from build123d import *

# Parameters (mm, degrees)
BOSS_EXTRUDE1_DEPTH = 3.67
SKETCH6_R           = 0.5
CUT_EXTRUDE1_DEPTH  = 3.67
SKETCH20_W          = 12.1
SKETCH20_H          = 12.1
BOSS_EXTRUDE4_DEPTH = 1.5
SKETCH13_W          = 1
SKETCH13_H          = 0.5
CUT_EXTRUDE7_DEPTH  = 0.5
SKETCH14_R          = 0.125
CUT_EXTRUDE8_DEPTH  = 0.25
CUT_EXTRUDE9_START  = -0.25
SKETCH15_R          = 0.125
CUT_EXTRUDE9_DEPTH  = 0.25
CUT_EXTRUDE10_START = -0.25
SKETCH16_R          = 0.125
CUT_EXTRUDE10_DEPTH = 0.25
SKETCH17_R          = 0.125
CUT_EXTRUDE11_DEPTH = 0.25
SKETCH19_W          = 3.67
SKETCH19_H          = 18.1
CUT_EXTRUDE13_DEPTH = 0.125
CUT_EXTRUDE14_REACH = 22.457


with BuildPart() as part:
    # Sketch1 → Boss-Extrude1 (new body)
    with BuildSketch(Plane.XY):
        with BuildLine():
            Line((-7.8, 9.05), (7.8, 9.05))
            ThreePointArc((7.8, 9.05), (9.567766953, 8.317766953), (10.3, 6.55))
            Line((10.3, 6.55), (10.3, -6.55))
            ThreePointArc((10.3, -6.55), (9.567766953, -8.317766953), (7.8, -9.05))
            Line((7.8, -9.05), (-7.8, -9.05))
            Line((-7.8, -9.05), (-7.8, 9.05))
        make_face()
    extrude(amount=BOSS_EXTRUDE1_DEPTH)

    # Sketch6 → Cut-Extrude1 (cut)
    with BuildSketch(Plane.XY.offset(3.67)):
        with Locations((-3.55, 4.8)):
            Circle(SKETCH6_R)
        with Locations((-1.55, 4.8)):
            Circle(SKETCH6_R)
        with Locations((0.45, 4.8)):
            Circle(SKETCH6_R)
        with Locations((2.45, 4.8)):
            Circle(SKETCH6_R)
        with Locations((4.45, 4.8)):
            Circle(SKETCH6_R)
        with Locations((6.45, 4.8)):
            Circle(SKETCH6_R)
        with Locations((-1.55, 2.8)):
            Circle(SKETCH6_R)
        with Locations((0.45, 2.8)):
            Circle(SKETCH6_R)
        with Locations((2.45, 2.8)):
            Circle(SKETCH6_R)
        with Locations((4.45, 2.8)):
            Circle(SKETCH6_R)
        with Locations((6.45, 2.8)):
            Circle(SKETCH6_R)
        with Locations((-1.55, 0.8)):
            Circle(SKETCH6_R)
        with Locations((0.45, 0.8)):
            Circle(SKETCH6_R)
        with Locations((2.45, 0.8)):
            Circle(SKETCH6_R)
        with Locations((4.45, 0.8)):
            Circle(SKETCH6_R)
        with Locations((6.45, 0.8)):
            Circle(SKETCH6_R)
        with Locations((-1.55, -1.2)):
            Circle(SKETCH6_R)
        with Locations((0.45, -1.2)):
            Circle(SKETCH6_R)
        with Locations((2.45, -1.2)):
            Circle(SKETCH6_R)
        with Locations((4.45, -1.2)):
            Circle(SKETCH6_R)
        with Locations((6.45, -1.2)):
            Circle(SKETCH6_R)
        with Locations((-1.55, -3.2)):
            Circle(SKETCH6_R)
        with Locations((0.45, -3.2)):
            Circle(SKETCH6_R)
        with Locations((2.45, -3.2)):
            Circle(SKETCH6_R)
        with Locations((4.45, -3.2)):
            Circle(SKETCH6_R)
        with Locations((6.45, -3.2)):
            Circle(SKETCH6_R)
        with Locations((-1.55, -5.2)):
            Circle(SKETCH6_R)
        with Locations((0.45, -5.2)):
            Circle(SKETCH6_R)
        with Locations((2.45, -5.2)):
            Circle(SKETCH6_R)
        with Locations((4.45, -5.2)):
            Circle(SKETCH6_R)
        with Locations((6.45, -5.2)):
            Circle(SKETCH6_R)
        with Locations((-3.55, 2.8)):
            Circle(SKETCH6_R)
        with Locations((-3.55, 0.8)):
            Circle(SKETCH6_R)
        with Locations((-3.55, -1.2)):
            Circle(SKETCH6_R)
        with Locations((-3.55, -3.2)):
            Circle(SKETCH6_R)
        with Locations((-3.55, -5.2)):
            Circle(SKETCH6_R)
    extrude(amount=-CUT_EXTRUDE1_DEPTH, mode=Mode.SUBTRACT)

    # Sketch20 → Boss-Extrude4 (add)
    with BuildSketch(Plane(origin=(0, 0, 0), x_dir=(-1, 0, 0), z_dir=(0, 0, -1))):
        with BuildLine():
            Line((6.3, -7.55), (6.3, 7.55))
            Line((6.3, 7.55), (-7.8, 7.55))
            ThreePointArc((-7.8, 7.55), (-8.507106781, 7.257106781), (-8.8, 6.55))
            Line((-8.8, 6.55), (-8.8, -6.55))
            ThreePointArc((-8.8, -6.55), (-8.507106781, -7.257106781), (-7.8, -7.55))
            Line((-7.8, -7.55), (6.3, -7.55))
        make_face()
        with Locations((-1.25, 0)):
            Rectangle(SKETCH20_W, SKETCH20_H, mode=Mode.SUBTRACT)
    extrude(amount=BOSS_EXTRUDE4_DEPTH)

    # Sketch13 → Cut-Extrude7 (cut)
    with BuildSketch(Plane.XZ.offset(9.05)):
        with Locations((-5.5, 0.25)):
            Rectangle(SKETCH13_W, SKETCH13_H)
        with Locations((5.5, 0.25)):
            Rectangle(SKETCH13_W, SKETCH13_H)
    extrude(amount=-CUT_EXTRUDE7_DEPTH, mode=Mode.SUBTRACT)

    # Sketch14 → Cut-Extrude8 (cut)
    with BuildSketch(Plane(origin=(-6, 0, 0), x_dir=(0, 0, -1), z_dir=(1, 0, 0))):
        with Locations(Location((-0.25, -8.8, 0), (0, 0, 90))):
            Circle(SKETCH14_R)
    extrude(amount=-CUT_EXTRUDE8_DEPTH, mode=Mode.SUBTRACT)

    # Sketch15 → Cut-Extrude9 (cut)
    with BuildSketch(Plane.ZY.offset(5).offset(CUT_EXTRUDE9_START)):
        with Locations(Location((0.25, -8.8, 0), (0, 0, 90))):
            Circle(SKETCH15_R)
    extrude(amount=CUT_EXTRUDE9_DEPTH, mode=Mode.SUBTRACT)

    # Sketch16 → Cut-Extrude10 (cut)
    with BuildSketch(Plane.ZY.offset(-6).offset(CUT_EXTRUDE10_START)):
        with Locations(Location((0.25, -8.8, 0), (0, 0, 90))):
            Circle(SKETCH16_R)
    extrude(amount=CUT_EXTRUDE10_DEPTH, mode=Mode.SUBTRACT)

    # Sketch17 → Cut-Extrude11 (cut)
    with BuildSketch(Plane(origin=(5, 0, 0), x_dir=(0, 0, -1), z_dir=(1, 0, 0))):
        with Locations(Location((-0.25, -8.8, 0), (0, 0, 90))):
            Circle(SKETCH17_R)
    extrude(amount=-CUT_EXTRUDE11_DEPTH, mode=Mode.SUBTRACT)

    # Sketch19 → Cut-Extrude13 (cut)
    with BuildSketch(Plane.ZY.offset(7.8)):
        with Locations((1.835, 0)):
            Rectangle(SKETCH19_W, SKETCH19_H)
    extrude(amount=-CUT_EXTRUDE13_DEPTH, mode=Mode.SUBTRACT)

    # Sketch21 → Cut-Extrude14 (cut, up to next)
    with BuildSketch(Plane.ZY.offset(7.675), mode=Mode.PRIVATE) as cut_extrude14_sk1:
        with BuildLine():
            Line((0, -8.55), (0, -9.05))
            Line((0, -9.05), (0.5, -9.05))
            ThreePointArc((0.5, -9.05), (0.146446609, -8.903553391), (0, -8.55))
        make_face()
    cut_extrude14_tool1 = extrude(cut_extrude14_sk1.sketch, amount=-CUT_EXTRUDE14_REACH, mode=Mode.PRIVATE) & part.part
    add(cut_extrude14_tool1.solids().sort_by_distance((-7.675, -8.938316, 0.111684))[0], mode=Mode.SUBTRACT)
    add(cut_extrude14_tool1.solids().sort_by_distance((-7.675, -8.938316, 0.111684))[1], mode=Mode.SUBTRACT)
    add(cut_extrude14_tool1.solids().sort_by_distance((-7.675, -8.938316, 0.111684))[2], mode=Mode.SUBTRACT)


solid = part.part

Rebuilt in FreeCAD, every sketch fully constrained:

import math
import FreeCAD as App
import Part
import Sketcher

doc = App.newDocument("Part")
body = doc.addObject("PartDesign::Body", "Body")

sketch1 = body.newObject("Sketcher::SketchObject", "Sketch")
sketch1.AttachmentSupport = (doc.getObject("XY_Plane"), [""])
sketch1.MapMode = "FlatFace"
sketch1.addGeometry([
    Part.LineSegment(App.Vector(7.8, 9.1, 0), App.Vector(-7.8, 9.1, 0)),
    Part.LineSegment(App.Vector(-7.8, 9.1, 0), App.Vector(-7.8, -9.1, 0)),
    Part.LineSegment(App.Vector(-7.8, -9.1, 0), App.Vector(7.8, -9.1, 0)),
    Part.ArcOfCircle(Part.Circle(App.Vector(7.8, -6.5, 0), App.Vector(0, 0, 1), 2.5), math.radians(-90), math.radians(0)),
    Part.LineSegment(App.Vector(10.3, -6.5, 0), App.Vector(10.3, 6.5, 0)),
    Part.ArcOfCircle(Part.Circle(App.Vector(7.8, 6.5, 0), App.Vector(0, 0, 1), 2.5), math.radians(0), math.radians(90)),
], False)
sketch1.addConstraint([
    Sketcher.Constraint("Coincident", 0, 2, 1, 1),
    Sketcher.Constraint("Coincident", 1, 2, 2, 1),
    Sketcher.Constraint("Tangent", 2, 2, 3, 1),
    Sketcher.Constraint("Tangent", 3, 2, 4, 1),
    Sketcher.Constraint("Tangent", 4, 2, 5, 1),
    Sketcher.Constraint("Tangent", 5, 2, 0, 1),
    Sketcher.Constraint("Horizontal", 0),
    Sketcher.Constraint("Vertical", 1),
    Sketcher.Constraint("Horizontal", 2),
    Sketcher.Constraint("Vertical", 4),
    Sketcher.Constraint("Equal", 3, 5),
    Sketcher.Constraint("Symmetric", 0, 2, 2, 2, -1, 1),
    Sketcher.Constraint("Radius", 3, 2.5),
    Sketcher.Constraint("DistanceX", 0, 2, 0, 1, 15.6),
    Sketcher.Constraint("DistanceY", 1, 2, 1, 1, 18.1),
])
pad1 = body.newObject("PartDesign::Pad", "Pad")
pad1.Profile = sketch1
pad1.Length = 3.67

sketch2 = body.newObject("Sketcher::SketchObject", "Sketch001")
sketch2.AttachmentSupport = (doc.getObject("XY_Plane"), [""])
sketch2.MapMode = "FlatFace"
sketch2.AttachmentOffset = App.Placement(App.Vector(0, 0, 3.67), App.Rotation())
sketch2.addGeometry([
    Part.Circle(App.Vector(-3.5, 4.8, 0), App.Vector(0, 0, 1), 0.5),
    Part.Circle(App.Vector(-1.6, 4.8, 0), App.Vector(0, 0, 1), 0.5),
    Part.Circle(App.Vector(0.5, 4.8, 0), App.Vector(0, 0, 1), 0.5),
    Part.Circle(App.Vector(2.5, 4.8, 0), App.Vector(0, 0, 1), 0.5),
    Part.Circle(App.Vector(4.5, 4.8, 0), App.Vector(0, 0, 1), 0.5),
    Part.Circle(App.Vector(6.5, 4.8, 0), App.Vector(0, 0, 1), 0.5),
    Part.Circle(App.Vector(-1.6, 2.8, 0), App.Vector(0, 0, 1), 0.5),
    Part.Circle(App.Vector(0.5, 2.8, 0), App.Vector(0, 0, 1), 0.5),
    Part.Circle(App.Vector(2.5, 2.8, 0), App.Vector(0, 0, 1), 0.5),
    Part.Circle(App.Vector(4.5, 2.8, 0), App.Vector(0, 0, 1), 0.5),
    Part.Circle(App.Vector(6.5, 2.8, 0), App.Vector(0, 0, 1), 0.5),
    Part.Circle(App.Vector(-1.6, 0.8, 0), App.Vector(0, 0, 1), 0.5),
    Part.Circle(App.Vector(0.5, 0.8, 0), App.Vector(0, 0, 1), 0.5),
    Part.Circle(App.Vector(2.5, 0.8, 0), App.Vector(0, 0, 1), 0.5),
    Part.Circle(App.Vector(4.5, 0.8, 0), App.Vector(0, 0, 1), 0.5),
    Part.Circle(App.Vector(6.5, 0.8, 0), App.Vector(0, 0, 1), 0.5),
    Part.Circle(App.Vector(-1.6, -1.2, 0), App.Vector(0, 0, 1), 0.5),
    Part.Circle(App.Vector(0.5, -1.2, 0), App.Vector(0, 0, 1), 0.5),
    Part.Circle(App.Vector(2.5, -1.2, 0), App.Vector(0, 0, 1), 0.5),
    Part.Circle(App.Vector(4.5, -1.2, 0), App.Vector(0, 0, 1), 0.5),
    Part.Circle(App.Vector(6.5, -1.2, 0), App.Vector(0, 0, 1), 0.5),
    Part.Circle(App.Vector(-1.6, -3.2, 0), App.Vector(0, 0, 1), 0.5),
    Part.Circle(App.Vector(0.5, -3.2, 0), App.Vector(0, 0, 1), 0.5),
    Part.Circle(App.Vector(2.5, -3.2, 0), App.Vector(0, 0, 1), 0.5),
    Part.Circle(App.Vector(4.5, -3.2, 0), App.Vector(0, 0, 1), 0.5),
    Part.Circle(App.Vector(6.5, -3.2, 0), App.Vector(0, 0, 1), 0.5),
    Part.Circle(App.Vector(-1.6, -5.2, 0), App.Vector(0, 0, 1), 0.5),
    Part.Circle(App.Vector(0.5, -5.2, 0), App.Vector(0, 0, 1), 0.5),
    Part.Circle(App.Vector(2.5, -5.2, 0), App.Vector(0, 0, 1), 0.5),
    Part.Circle(App.Vector(4.5, -5.2, 0), App.Vector(0, 0, 1), 0.5),
    Part.Circle(App.Vector(6.5, -5.2, 0), App.Vector(0, 0, 1), 0.5),
    Part.Circle(App.Vector(-3.5, 2.8, 0), App.Vector(0, 0, 1), 0.5),
    Part.Circle(App.Vector(-3.5, 0.8, 0), App.Vector(0, 0, 1), 0.5),
    Part.Circle(App.Vector(-3.5, -1.2, 0), App.Vector(0, 0, 1), 0.5),
    Part.Circle(App.Vector(-3.5, -3.2, 0), App.Vector(0, 0, 1), 0.5),
    Part.Circle(App.Vector(-3.5, -5.2, 0), App.Vector(0, 0, 1), 0.5),
], False)
sketch2.addConstraint([
    Sketcher.Constraint("Equal", 0, 1),
    Sketcher.Constraint("Equal", 1, 2),
    Sketcher.Constraint("Equal", 2, 3),
    Sketcher.Constraint("Equal", 3, 4),
    Sketcher.Constraint("Equal", 4, 5),
    Sketcher.Constraint("Equal", 5, 6),
    Sketcher.Constraint("Equal", 6, 7),
    Sketcher.Constraint("Equal", 7, 8),
    Sketcher.Constraint("Equal", 8, 9),
    Sketcher.Constraint("Equal", 9, 10),
    Sketcher.Constraint("Equal", 10, 11),
    Sketcher.Constraint("Equal", 11, 12),
    Sketcher.Constraint("Equal", 12, 13),
    Sketcher.Constraint("Equal", 13, 14),
    Sketcher.Constraint("Equal", 14, 15),
    Sketcher.Constraint("Equal", 15, 16),
    Sketcher.Constraint("Equal", 16, 17),
    Sketcher.Constraint("Equal", 17, 18),
    Sketcher.Constraint("Equal", 18, 19),
    Sketcher.Constraint("Equal", 19, 20),
    Sketcher.Constraint("Equal", 20, 21),
    Sketcher.Constraint("Equal", 21, 22),
    Sketcher.Constraint("Equal", 22, 23),
    Sketcher.Constraint("Equal", 23, 24),
    Sketcher.Constraint("Equal", 24, 25),
    Sketcher.Constraint("Equal", 25, 26),
    Sketcher.Constraint("Equal", 26, 27),
    Sketcher.Constraint("Equal", 27, 28),
    Sketcher.Constraint("Equal", 28, 29),
    Sketcher.Constraint("Equal", 29, 30),
    Sketcher.Constraint("Equal", 30, 31),
    Sketcher.Constraint("Equal", 31, 32),
    Sketcher.Constraint("Equal", 32, 33),
    Sketcher.Constraint("Equal", 33, 34),
    Sketcher.Constraint("Equal", 34, 35),
    Sketcher.Constraint("Horizontal", 0, 3, 1, 3),
    Sketcher.Constraint("Horizontal", 1, 3, 2, 3),
    Sketcher.Constraint("Horizontal", 2, 3, 3, 3),
    Sketcher.Constraint("Horizontal", 3, 3, 4, 3),
    Sketcher.Constraint("Horizontal", 4, 3, 5, 3),
    Sketcher.Constraint("Horizontal", 6, 3, 7, 3),
    Sketcher.Constraint("Horizontal", 7, 3, 8, 3),
    Sketcher.Constraint("Horizontal", 8, 3, 9, 3),
    Sketcher.Constraint("Horizontal", 9, 3, 10, 3),
    Sketcher.Constraint("Horizontal", 11, 3, 12, 3),
    Sketcher.Constraint("Horizontal", 12, 3, 13, 3),
    Sketcher.Constraint("Horizontal", 13, 3, 14, 3),
    Sketcher.Constraint("Horizontal", 14, 3, 15, 3),
    Sketcher.Constraint("Horizontal", 16, 3, 17, 3),
    Sketcher.Constraint("Horizontal", 17, 3, 18, 3),
    Sketcher.Constraint("Horizontal", 18, 3, 19, 3),
    Sketcher.Constraint("Horizontal", 19, 3, 20, 3),
    Sketcher.Constraint("Horizontal", 21, 3, 22, 3),
    Sketcher.Constraint("Horizontal", 22, 3, 23, 3),
    Sketcher.Constraint("Horizontal", 23, 3, 24, 3),
    Sketcher.Constraint("Horizontal", 24, 3, 25, 3),
    Sketcher.Constraint("Horizontal", 26, 3, 27, 3),
    Sketcher.Constraint("Horizontal", 27, 3, 28, 3),
    Sketcher.Constraint("Horizontal", 28, 3, 29, 3),
    Sketcher.Constraint("Horizontal", 29, 3, 30, 3),
    Sketcher.Constraint("Horizontal", 10, 3, 31, 3),
    Sketcher.Constraint("Horizontal", 15, 3, 32, 3),
    Sketcher.Constraint("Horizontal", 20, 3, 33, 3),
    Sketcher.Constraint("Horizontal", 25, 3, 34, 3),
    Sketcher.Constraint("Horizontal", 30, 3, 35, 3),
    Sketcher.Constraint("Vertical", 1, 3, 6, 3),
    Sketcher.Constraint("Vertical", 2, 3, 7, 3),
    Sketcher.Constraint("Vertical", 3, 3, 8, 3),
    Sketcher.Constraint("Vertical", 4, 3, 9, 3),
    Sketcher.Constraint("Vertical", 5, 3, 10, 3),
    Sketcher.Constraint("Vertical", 6, 3, 11, 3),
    Sketcher.Constraint("Vertical", 7, 3, 12, 3),
    Sketcher.Constraint("Vertical", 8, 3, 13, 3),
    Sketcher.Constraint("Vertical", 9, 3, 14, 3),
    Sketcher.Constraint("Vertical", 10, 3, 15, 3),
    Sketcher.Constraint("Vertical", 11, 3, 16, 3),
    Sketcher.Constraint("Vertical", 12, 3, 17, 3),
    Sketcher.Constraint("Vertical", 13, 3, 18, 3),
    Sketcher.Constraint("Vertical", 14, 3, 19, 3),
    Sketcher.Constraint("Vertical", 15, 3, 20, 3),
    Sketcher.Constraint("Vertical", 16, 3, 21, 3),
    Sketcher.Constraint("Vertical", 17, 3, 22, 3),
    Sketcher.Constraint("Vertical", 18, 3, 23, 3),
    Sketcher.Constraint("Vertical", 19, 3, 24, 3),
    Sketcher.Constraint("Vertical", 20, 3, 25, 3),
    Sketcher.Constraint("Vertical", 21, 3, 26, 3),
    Sketcher.Constraint("Vertical", 22, 3, 27, 3),
    Sketcher.Constraint("Vertical", 23, 3, 28, 3),
    Sketcher.Constraint("Vertical", 24, 3, 29, 3),
    Sketcher.Constraint("Vertical", 25, 3, 30, 3),
    Sketcher.Constraint("Vertical", 0, 3, 31, 3),
    Sketcher.Constraint("Vertical", 31, 3, 32, 3),
    Sketcher.Constraint("Vertical", 32, 3, 33, 3),
    Sketcher.Constraint("Vertical", 33, 3, 34, 3),
    Sketcher.Constraint("Vertical", 34, 3, 35, 3),
    Sketcher.Constraint("Diameter", 0, 1.0),
    Sketcher.Constraint("DistanceX", 0, 3, 1, 3, 2.0),
    Sketcher.Constraint("DistanceX", 1, 3, 2, 3, 2.0),
    Sketcher.Constraint("DistanceX", 2, 3, 3, 3, 2.0),
    Sketcher.Constraint("DistanceX", 3, 3, 4, 3, 2.0),
    Sketcher.Constraint("DistanceX", 4, 3, 5, 3, 2.0),
    Sketcher.Constraint("DistanceY", 6, 3, 1, 3, 2.0),
    Sketcher.Constraint("DistanceY", 11, 3, 6, 3, 2.0),
    Sketcher.Constraint("DistanceY", 16, 3, 11, 3, 2.0),
    Sketcher.Constraint("DistanceY", 21, 3, 16, 3, 2.0),
    Sketcher.Constraint("DistanceY", 26, 3, 21, 3, 2.0),
    Sketcher.Constraint("DistanceY", -1, 1, 0, 3, 4.8),
    Sketcher.Constraint("DistanceX", 0, 3, -1, 1, 3.55),
])
pocket1 = body.newObject("PartDesign::Pocket", "Pocket")
pocket1.Profile = sketch2
pocket1.Length = 3.67

sketch3 = body.newObject("Sketcher::SketchObject", "Sketch002")
sketch3.AttachmentSupport = (doc.getObject("XY_Plane"), [""])
sketch3.MapMode = "FlatFace"
sketch3.addGeometry([
    Part.LineSegment(App.Vector(-6.3, -7.5, 0), App.Vector(-6.3, 7.5, 0)),
    Part.LineSegment(App.Vector(-6.3, 7.5, 0), App.Vector(7.8, 7.5, 0)),
    Part.ArcOfCircle(Part.Circle(App.Vector(7.8, 6.5, 0), App.Vector(0, 0, 1), 1), math.radians(0), math.radians(90)),
    Part.LineSegment(App.Vector(8.8, 6.5, 0), App.Vector(8.8, -6.5, 0)),
    Part.ArcOfCircle(Part.Circle(App.Vector(7.8, -6.5, 0), App.Vector(0, 0, 1), 1), math.radians(-90), math.radians(0)),
    Part.LineSegment(App.Vector(7.8, -7.5, 0), App.Vector(-6.3, -7.5, 0)),
    Part.LineSegment(App.Vector(-4.8, -6, 0), App.Vector(7.3, -6, 0)),
    Part.LineSegment(App.Vector(7.3, -6, 0), App.Vector(7.3, 6, 0)),
    Part.LineSegment(App.Vector(7.3, 6, 0), App.Vector(-4.8, 6, 0)),
    Part.LineSegment(App.Vector(-4.8, 6, 0), App.Vector(-4.8, -6, 0)),
], False)
sketch3.addConstraint([
    Sketcher.Constraint("Coincident", 0, 2, 1, 1),
    Sketcher.Constraint("Tangent", 1, 2, 2, 2),
    Sketcher.Constraint("Tangent", 2, 1, 3, 1),
    Sketcher.Constraint("Tangent", 3, 2, 4, 2),
    Sketcher.Constraint("Tangent", 4, 1, 5, 1),
    Sketcher.Constraint("Coincident", 5, 2, 0, 1),
    Sketcher.Constraint("Coincident", 6, 2, 7, 1),
    Sketcher.Constraint("Coincident", 7, 2, 8, 1),
    Sketcher.Constraint("Coincident", 8, 2, 9, 1),
    Sketcher.Constraint("Coincident", 9, 2, 6, 1),
    Sketcher.Constraint("Vertical", 0),
    Sketcher.Constraint("Horizontal", 1),
    Sketcher.Constraint("Vertical", 3),
    Sketcher.Constraint("Horizontal", 5),
    Sketcher.Constraint("Horizontal", 6),
    Sketcher.Constraint("Vertical", 7),
    Sketcher.Constraint("Horizontal", 8),
    Sketcher.Constraint("Vertical", 9),
    Sketcher.Constraint("Equal", 2, 4),
    Sketcher.Constraint("Equal", 8, 7),
    Sketcher.Constraint("Radius", 2, 1.0),
    Sketcher.Constraint("DistanceX", 1, 1, 1, 2, 14.1),
    Sketcher.Constraint("DistanceX", 6, 1, 6, 2, 12.1),
    Sketcher.Constraint("DistanceY", 0, 1, 0, 2, 15.1),
    Sketcher.Constraint("DistanceX", -1, 1, 2, 3, 7.8),
    Sketcher.Constraint("DistanceX", -1, 1, 6, 2, 7.3),
    Sketcher.Constraint("DistanceY", 4, 3, 6, 2, 0.5),
    Sketcher.Constraint("DistanceY", -1, 1, 2, 3, 6.55),
])
pad2 = body.newObject("PartDesign::Pad", "Pad001")
pad2.Profile = sketch3
pad2.Length = 1.5
pad2.Reversed = True

sketch4 = body.newObject("Sketcher::SketchObject", "Sketch003")
sketch4.AttachmentSupport = (doc.getObject("XZ_Plane"), [""])
sketch4.MapMode = "FlatFace"
sketch4.AttachmentOffset = App.Placement(App.Vector(0, 0, 9.05), App.Rotation())
sketch4.addGeometry([
    Part.LineSegment(App.Vector(-6, 0.5, 0), App.Vector(-6, 0, 0)),
    Part.LineSegment(App.Vector(-6, 0, 0), App.Vector(-5, 0, 0)),
    Part.LineSegment(App.Vector(-5, 0, 0), App.Vector(-5, 0.5, 0)),
    Part.LineSegment(App.Vector(-5, 0.5, 0), App.Vector(-6, 0.5, 0)),
    Part.LineSegment(App.Vector(5, 0.5, 0), App.Vector(5, 0, 0)),
    Part.LineSegment(App.Vector(5, 0, 0), App.Vector(6, 0, 0)),
    Part.LineSegment(App.Vector(6, 0, 0), App.Vector(6, 0.5, 0)),
    Part.LineSegment(App.Vector(6, 0.5, 0), App.Vector(5, 0.5, 0)),
], False)
sketch4.addConstraint([
    Sketcher.Constraint("Coincident", 0, 2, 1, 1),
    Sketcher.Constraint("Coincident", 1, 2, 2, 1),
    Sketcher.Constraint("Coincident", 2, 2, 3, 1),
    Sketcher.Constraint("Coincident", 3, 2, 0, 1),
    Sketcher.Constraint("Coincident", 4, 2, 5, 1),
    Sketcher.Constraint("Coincident", 5, 2, 6, 1),
    Sketcher.Constraint("Coincident", 6, 2, 7, 1),
    Sketcher.Constraint("Coincident", 7, 2, 4, 1),
    Sketcher.Constraint("Vertical", 0),
    Sketcher.Constraint("Horizontal", 1),
    Sketcher.Constraint("Vertical", 2),
    Sketcher.Constraint("Horizontal", 3),
    Sketcher.Constraint("Vertical", 4),
    Sketcher.Constraint("Horizontal", 5),
    Sketcher.Constraint("Vertical", 6),
    Sketcher.Constraint("Horizontal", 7),
    Sketcher.Constraint("Symmetric", 1, 2, 4, 2, -1, 1),
    Sketcher.Constraint("Symmetric", 0, 2, 5, 2, -2),
    Sketcher.Constraint("Horizontal", 3, 2, 6, 2),
    Sketcher.Constraint("DistanceX", 1, 1, 1, 2, 1.0),
    Sketcher.Constraint("DistanceY", 0, 2, 0, 1, 0.5),
    Sketcher.Constraint("DistanceX", 0, 2, -1, 1, 6.0),
])
pocket2 = body.newObject("PartDesign::Pocket", "Pocket001")
pocket2.Profile = sketch4
pocket2.Length = 0.5

sketch5 = body.newObject("Sketcher::SketchObject", "Sketch004")
sketch5.AttachmentSupport = (doc.getObject("YZ_Plane"), [""])
sketch5.MapMode = "FlatFace"
sketch5.AttachmentOffset = App.Placement(App.Vector(0, 0, -6), App.Rotation())
sketch5.addGeometry(Part.Circle(App.Vector(-8.8, 0.25, 0), App.Vector(0, 0, 1), 0.12), False)
sketch5.addConstraint([
    Sketcher.Constraint("Diameter", 0, 0.25),
    Sketcher.Constraint("DistanceX", 0, 3, -1, 1, 8.8),
    Sketcher.Constraint("DistanceY", -1, 1, 0, 3, 0.25),
])
pocket3 = body.newObject("PartDesign::Pocket", "Pocket002")
pocket3.Profile = sketch5
pocket3.Length = 0.25

sketch6 = body.newObject("Sketcher::SketchObject", "Sketch005")
sketch6.AttachmentSupport = (doc.getObject("YZ_Plane"), [""])
sketch6.MapMode = "FlatFace"
sketch6.AttachmentOffset = App.Placement(App.Vector(0, 0, -4.75), App.Rotation())
sketch6.addGeometry(Part.Circle(App.Vector(-8.8, 0.25, 0), App.Vector(0, 0, 1), 0.12), False)
sketch6.addConstraint([
    Sketcher.Constraint("Diameter", 0, 0.25),
    Sketcher.Constraint("DistanceX", 0, 3, -1, 1, 8.8),
    Sketcher.Constraint("DistanceY", -1, 1, 0, 3, 0.25),
])
pocket4 = body.newObject("PartDesign::Pocket", "Pocket003")
pocket4.Profile = sketch6
pocket4.Length = 0.25

sketch7 = body.newObject("Sketcher::SketchObject", "Sketch006")
sketch7.AttachmentSupport = (doc.getObject("YZ_Plane"), [""])
sketch7.MapMode = "FlatFace"
sketch7.AttachmentOffset = App.Placement(App.Vector(0, 0, 6.25), App.Rotation())
sketch7.addGeometry(Part.Circle(App.Vector(-8.8, 0.25, 0), App.Vector(0, 0, 1), 0.12), False)
sketch7.addConstraint([
    Sketcher.Constraint("Diameter", 0, 0.25),
    Sketcher.Constraint("DistanceX", 0, 3, -1, 1, 8.8),
    Sketcher.Constraint("DistanceY", -1, 1, 0, 3, 0.25),
])
pocket5 = body.newObject("PartDesign::Pocket", "Pocket004")
pocket5.Profile = sketch7
pocket5.Length = 0.25

sketch8 = body.newObject("Sketcher::SketchObject", "Sketch007")
sketch8.AttachmentSupport = (doc.getObject("YZ_Plane"), [""])
sketch8.MapMode = "FlatFace"
sketch8.AttachmentOffset = App.Placement(App.Vector(0, 0, 5), App.Rotation())
sketch8.addGeometry(Part.Circle(App.Vector(-8.8, 0.25, 0), App.Vector(0, 0, 1), 0.12), False)
sketch8.addConstraint([
    Sketcher.Constraint("Diameter", 0, 0.25),
    Sketcher.Constraint("DistanceX", 0, 3, -1, 1, 8.8),
    Sketcher.Constraint("DistanceY", -1, 1, 0, 3, 0.25),
])
pocket6 = body.newObject("PartDesign::Pocket", "Pocket005")
pocket6.Profile = sketch8
pocket6.Length = 0.25

sketch9 = body.newObject("Sketcher::SketchObject", "Sketch008")
sketch9.AttachmentSupport = (doc.getObject("YZ_Plane"), [""])
sketch9.MapMode = "FlatFace"
sketch9.AttachmentOffset = App.Placement(App.Vector(0, 0, -7.8), App.Rotation())
sketch9.addGeometry([
    Part.LineSegment(App.Vector(9.1, 0, 0), App.Vector(-9.1, 0, 0)),
    Part.LineSegment(App.Vector(-9.1, 0, 0), App.Vector(-9.1, 3.7, 0)),
    Part.LineSegment(App.Vector(-9.1, 3.7, 0), App.Vector(9.1, 3.7, 0)),
    Part.LineSegment(App.Vector(9.1, 3.7, 0), App.Vector(9.1, 0, 0)),
], False)
sketch9.addConstraint([
    Sketcher.Constraint("Coincident", 0, 2, 1, 1),
    Sketcher.Constraint("Coincident", 1, 2, 2, 1),
    Sketcher.Constraint("Coincident", 2, 2, 3, 1),
    Sketcher.Constraint("Coincident", 3, 2, 0, 1),
    Sketcher.Constraint("Horizontal", 0),
    Sketcher.Constraint("Vertical", 1),
    Sketcher.Constraint("Horizontal", 2),
    Sketcher.Constraint("Vertical", 3),
    Sketcher.Constraint("Symmetric", 0, 2, 3, 2, -1, 1),
    Sketcher.Constraint("DistanceX", 0, 2, 0, 1, 18.1),
    Sketcher.Constraint("DistanceY", 1, 1, 1, 2, 3.67),
])
pocket7 = body.newObject("PartDesign::Pocket", "Pocket006")
pocket7.Profile = sketch9
pocket7.Length = 0.125
pocket7.Reversed = True

sketch10 = body.newObject("Sketcher::SketchObject", "Sketch009")
sketch10.AttachmentSupport = (doc.getObject("YZ_Plane"), [""])
sketch10.MapMode = "FlatFace"
sketch10.AttachmentOffset = App.Placement(App.Vector(0, 0, -7.675), App.Rotation())
sketch10.addGeometry([
    Part.LineSegment(App.Vector(-8.55, 0, 0), App.Vector(-9.05, 0, 0)),
    Part.LineSegment(App.Vector(-9.05, 0, 0), App.Vector(-9.05, 0.5, 0)),
    Part.ArcOfCircle(Part.Circle(App.Vector(-8.55, 0.5, 0), App.Vector(0, 0, 1), 0.5), math.radians(180), math.radians(270)),
], False)
sketch10.addConstraint([
    Sketcher.Constraint("Coincident", 0, 2, 1, 1),
    Sketcher.Constraint("Tangent", 1, 2, 2, 1),
    Sketcher.Constraint("Tangent", 2, 2, 0, 1),
    Sketcher.Constraint("Horizontal", 0),
    Sketcher.Constraint("Vertical", 1),
    Sketcher.Constraint("PointOnObject", 0, 2, -1),
    Sketcher.Constraint("Radius", 2, 0.5),
    Sketcher.Constraint("DistanceX", 2, 3, -1, 1, 8.55),
])
pocket8 = body.newObject("PartDesign::Pocket", "Pocket007")
pocket8.Profile = sketch10
pocket8.Type = "UpToFirst"
pocket8.Reversed = True
pocket9 = body.newObject("PartDesign::Pocket", "Pocket008")
pocket9.Profile = sketch10
pocket9.Length = 12.675
pocket9.Reversed = True
pocket10 = body.newObject("PartDesign::Pocket", "Pocket009")
pocket10.Profile = sketch10
pocket10.Length = 16.975
pocket10.Reversed = True

doc.recompute()
